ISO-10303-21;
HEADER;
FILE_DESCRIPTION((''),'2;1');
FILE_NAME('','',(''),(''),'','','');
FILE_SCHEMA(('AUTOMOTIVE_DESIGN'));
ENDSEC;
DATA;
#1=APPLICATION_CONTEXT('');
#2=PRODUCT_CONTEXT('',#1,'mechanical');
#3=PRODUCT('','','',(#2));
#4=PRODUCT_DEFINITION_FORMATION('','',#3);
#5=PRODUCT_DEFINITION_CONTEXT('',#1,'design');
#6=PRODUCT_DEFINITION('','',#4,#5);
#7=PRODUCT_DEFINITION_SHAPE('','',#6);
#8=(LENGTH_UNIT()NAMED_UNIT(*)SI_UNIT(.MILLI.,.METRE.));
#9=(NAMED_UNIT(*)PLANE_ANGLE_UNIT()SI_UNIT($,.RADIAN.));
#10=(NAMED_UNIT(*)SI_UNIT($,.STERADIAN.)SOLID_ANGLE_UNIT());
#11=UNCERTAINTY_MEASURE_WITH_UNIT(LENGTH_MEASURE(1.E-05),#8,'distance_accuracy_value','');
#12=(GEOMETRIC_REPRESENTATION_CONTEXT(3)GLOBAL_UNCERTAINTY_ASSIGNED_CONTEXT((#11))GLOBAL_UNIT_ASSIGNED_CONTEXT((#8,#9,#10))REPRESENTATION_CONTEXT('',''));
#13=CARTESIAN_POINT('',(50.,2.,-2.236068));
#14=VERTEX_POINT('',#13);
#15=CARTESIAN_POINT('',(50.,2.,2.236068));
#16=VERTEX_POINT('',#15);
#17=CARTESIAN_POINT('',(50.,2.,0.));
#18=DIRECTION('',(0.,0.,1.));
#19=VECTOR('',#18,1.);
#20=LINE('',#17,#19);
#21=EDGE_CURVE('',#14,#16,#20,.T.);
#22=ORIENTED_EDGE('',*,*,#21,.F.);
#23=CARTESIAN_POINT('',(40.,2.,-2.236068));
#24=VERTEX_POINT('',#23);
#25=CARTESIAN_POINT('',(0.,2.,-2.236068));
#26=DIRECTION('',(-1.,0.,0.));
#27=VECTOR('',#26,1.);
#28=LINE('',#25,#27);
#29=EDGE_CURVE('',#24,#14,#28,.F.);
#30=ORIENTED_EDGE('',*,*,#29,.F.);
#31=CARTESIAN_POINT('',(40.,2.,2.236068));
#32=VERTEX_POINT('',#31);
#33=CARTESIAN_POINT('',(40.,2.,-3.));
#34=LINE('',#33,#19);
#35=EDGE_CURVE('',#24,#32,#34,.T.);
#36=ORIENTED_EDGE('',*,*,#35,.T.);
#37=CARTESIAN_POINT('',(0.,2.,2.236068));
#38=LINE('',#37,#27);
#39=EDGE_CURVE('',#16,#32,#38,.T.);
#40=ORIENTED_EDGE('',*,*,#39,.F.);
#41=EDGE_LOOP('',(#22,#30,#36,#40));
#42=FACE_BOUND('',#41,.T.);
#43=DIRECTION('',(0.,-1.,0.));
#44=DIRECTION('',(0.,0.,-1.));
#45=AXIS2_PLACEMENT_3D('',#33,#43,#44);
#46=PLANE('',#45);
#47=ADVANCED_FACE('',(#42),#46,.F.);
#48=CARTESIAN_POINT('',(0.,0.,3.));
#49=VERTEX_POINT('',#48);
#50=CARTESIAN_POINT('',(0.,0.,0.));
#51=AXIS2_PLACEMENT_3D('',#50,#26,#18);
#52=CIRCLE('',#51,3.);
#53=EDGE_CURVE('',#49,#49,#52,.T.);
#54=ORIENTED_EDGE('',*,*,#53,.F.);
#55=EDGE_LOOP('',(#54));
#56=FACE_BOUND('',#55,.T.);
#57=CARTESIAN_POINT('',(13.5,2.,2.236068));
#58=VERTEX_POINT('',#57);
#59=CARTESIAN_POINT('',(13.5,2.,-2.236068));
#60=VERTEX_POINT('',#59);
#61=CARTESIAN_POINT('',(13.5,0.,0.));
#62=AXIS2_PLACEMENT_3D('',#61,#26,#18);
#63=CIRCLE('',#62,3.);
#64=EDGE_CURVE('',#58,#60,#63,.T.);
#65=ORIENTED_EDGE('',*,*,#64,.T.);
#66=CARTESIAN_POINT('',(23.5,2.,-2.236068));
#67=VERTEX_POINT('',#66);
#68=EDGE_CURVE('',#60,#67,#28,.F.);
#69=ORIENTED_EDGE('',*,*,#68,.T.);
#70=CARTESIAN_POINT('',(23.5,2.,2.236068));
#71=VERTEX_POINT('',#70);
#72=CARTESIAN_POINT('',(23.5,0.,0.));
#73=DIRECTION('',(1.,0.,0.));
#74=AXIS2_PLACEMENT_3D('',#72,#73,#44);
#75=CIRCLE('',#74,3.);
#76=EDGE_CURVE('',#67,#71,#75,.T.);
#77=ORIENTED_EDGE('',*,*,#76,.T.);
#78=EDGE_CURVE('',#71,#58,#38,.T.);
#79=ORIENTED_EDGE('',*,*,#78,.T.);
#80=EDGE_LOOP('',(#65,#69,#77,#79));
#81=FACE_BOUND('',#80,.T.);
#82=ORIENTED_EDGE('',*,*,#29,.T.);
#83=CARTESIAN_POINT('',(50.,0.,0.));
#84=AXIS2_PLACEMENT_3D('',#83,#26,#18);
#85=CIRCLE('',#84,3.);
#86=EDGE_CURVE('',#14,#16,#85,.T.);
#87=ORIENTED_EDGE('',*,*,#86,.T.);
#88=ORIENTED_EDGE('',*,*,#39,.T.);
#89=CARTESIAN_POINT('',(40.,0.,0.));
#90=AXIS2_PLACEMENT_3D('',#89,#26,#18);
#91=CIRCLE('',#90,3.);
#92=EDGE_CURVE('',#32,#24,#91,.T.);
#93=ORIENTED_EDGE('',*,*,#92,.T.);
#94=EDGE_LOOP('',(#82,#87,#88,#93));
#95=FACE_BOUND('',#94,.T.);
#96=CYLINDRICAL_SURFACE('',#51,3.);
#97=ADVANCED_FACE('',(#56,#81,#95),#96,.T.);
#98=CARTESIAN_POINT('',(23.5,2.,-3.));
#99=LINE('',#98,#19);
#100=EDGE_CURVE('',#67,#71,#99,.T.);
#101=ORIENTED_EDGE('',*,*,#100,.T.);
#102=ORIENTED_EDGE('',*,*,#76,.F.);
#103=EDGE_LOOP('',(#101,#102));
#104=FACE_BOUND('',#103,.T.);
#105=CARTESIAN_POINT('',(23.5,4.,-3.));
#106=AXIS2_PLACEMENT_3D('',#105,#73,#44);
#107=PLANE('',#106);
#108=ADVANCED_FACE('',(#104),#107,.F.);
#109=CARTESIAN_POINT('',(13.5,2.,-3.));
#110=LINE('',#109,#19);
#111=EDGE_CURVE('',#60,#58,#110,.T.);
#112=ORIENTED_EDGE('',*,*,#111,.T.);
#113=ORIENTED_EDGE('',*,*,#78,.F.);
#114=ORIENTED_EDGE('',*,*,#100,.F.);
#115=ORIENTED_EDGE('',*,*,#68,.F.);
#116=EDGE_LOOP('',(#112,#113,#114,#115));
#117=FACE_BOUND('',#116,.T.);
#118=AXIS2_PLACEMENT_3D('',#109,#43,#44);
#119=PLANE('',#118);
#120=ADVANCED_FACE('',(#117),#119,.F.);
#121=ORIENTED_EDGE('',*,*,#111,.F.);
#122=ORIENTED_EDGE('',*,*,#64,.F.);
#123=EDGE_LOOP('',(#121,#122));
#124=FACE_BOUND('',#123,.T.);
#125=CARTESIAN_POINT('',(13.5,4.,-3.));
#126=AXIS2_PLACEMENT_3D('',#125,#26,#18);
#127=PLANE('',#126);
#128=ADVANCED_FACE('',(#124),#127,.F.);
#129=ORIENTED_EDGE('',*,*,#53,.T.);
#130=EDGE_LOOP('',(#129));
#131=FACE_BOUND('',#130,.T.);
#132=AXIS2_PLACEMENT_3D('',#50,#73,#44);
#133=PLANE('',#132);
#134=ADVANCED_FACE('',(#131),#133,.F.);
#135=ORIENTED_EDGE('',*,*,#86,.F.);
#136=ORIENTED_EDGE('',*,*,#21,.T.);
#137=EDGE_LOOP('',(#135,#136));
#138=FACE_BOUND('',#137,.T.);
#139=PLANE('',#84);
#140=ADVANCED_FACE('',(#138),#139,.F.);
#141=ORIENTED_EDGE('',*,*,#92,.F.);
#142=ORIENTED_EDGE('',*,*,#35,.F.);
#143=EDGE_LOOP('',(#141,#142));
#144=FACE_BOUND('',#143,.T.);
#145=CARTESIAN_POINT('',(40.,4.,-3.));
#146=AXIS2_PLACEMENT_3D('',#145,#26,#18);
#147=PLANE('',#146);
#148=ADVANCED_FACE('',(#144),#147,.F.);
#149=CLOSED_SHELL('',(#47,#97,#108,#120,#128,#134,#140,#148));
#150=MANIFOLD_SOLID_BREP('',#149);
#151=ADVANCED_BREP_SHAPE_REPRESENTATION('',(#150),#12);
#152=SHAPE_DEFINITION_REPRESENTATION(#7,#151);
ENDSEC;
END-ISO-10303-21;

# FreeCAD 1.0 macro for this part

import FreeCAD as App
import Part
import Sketcher

V = App.Vector
Q = App.Units.Quantity


def add_polygon(sketch, points):
    """Adds a closed chain of lines whose ends are joined by coincident constraints."""
    first, n = sketch.GeometryCount, len(points)
    for a, b in zip(points, points[1:] + points[:1]):
        sketch.addGeometry(Part.LineSegment(App.Vector(*a, 0), App.Vector(*b, 0)), False)
    for i in range(n):
        sketch.addConstraint(Sketcher.Constraint("Coincident", first + i, 2, first + (i + 1) % n, 1))

doc = App.newDocument("Part")
body = doc.addObject("PartDesign::Body", "Body")

# Sketch on XY plane
sketch1 = body.newObject("Sketcher::SketchObject", "Sketch")
sketch1.AttachmentSupport = (doc.getObject("XY_Plane"), [""])
sketch1.MapMode = "FlatFace"
add_polygon(sketch1, [(0, 3), (0, 0), (50, 0), (50, 3)])  # lines 0-3
sketch1.addConstraint([
    Sketcher.Constraint("Vertical", 0),
    Sketcher.Constraint("Horizontal", 1),
    Sketcher.Constraint("Vertical", 2),
    Sketcher.Constraint("Horizontal", 3),
    Sketcher.Constraint("Coincident", 0, 2, -1, 1),
    Sketcher.Constraint("DistanceX", 1, 1, 1, 2, Q("50 mm")),
    Sketcher.Constraint("DistanceY", 0, 2, 0, 1, Q("3 mm")),
])
revolution = body.newObject("PartDesign::Revolution", "Revolution")
revolution.Profile = sketch1
revolution.ReferenceAxis = (sketch1, ["H_Axis"])
revolution.Angle = 360

# Sketch on XY plane
sketch2 = body.newObject("Sketcher::SketchObject", "Sketch001")
sketch2.AttachmentSupport = (doc.getObject("XY_Plane"), [""])
sketch2.MapMode = "FlatFace"
add_polygon(sketch2, [(13.5, 4), (13.5, 2), (23.5, 2), (23.5, 4)])  # lines 0-3
add_polygon(sketch2, [(40, 4), (40, 2), (50, 2), (50, 4)])  # lines 4-7
sketch2.addConstraint([
    Sketcher.Constraint("Vertical", 0),
    Sketcher.Constraint("Horizontal", 1),
    Sketcher.Constraint("Vertical", 2),
    Sketcher.Constraint("Horizontal", 3),
    Sketcher.Constraint("Vertical", 4),
    Sketcher.Constraint("Horizontal", 5),
    Sketcher.Constraint("Vertical", 6),
    Sketcher.Constraint("Horizontal", 7),
    Sketcher.Constraint("Horizontal", 1, 2, 4, 2),
    Sketcher.Constraint("Horizontal", 3, 2, 6, 2),
    Sketcher.Constraint("Equal", 3, 5),
    Sketcher.Constraint("DistanceX", 1, 1, 1, 2, Q("10 mm")),
    Sketcher.Constraint("DistanceY", 0, 2, 0, 1, Q("2 mm")),
    Sketcher.Constraint("DistanceY", -1, 1, 0, 2, Q("2 mm")),
    Sketcher.Constraint("DistanceX", -1, 1, 4, 2, Q("40 mm")),
    Sketcher.Constraint("DistanceX", -1, 1, 0, 2, Q("13.5 mm")),
])
pocket1 = body.newObject("PartDesign::Pocket", "Pocket")
pocket1.Profile = sketch2
pocket1.Type = "ThroughAll"
pocket1.Midplane = True

doc.recompute()
